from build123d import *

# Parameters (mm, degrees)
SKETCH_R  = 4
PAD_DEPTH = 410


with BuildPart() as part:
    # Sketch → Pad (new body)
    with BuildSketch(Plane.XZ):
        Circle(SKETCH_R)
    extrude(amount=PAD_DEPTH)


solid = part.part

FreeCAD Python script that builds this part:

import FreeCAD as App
import Part
import Sketcher
from FreeCAD import Vector

doc = App.newDocument("Part")
body = doc.addObject("PartDesign::Body", "Body")

# Sketch on XZ plane
sketch1 = doc.addObject("Sketcher::SketchObject", "Sketch")
body.addObject(sketch1)
sketch1.AttachmentSupport = (doc.XZ_Plane, [""])
sketch1.MapMode = "FlatFace"
sketch1.addGeometry(Part.Circle(Vector(0, 0, 0), Vector(0, 0, 1), 4), False)
sketch1.addConstraint(Sketcher.Constraint("Coincident", 0, 3, -1, 1))
sketch1.addConstraint(Sketcher.Constraint("Diameter", 0, 8.0))
pad1 = doc.addObject("PartDesign::Pad", "Pad")
body.addObject(pad1)
pad1.Profile = sketch1
pad1.Length = 410

doc.recompute()
